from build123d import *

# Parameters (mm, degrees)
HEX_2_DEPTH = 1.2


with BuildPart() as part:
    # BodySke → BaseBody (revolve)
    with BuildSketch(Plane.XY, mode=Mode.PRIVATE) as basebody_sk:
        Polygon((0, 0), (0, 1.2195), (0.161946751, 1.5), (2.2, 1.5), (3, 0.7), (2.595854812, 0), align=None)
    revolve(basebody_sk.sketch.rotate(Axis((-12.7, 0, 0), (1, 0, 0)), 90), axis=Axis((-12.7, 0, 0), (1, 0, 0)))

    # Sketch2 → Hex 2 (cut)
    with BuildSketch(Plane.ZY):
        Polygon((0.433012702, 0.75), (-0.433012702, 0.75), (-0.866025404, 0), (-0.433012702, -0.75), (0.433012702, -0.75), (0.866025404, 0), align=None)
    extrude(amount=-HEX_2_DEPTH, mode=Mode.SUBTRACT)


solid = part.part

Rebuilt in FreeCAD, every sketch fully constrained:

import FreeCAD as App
import Part
import Sketcher
from FreeCAD import Vector
Q = App.Units.Quantity


def add_polygon(sketch, points):
    """Adds a closed chain of lines whose ends are joined by coincident constraints."""
    first, n = sketch.GeometryCount, len(points)
    for a, b in zip(points, points[1:] + points[:1]):
        sketch.addGeometry(Part.LineSegment(App.Vector(*a, 0), App.Vector(*b, 0)), False)
    for i in range(n):
        sketch.addConstraint(Sketcher.Constraint("Coincident", first + i, 2, first + (i + 1) % n, 1))

doc = App.newDocument("Part")
body = doc.addObject("PartDesign::Body", "Body")

sketch1 = doc.addObject("Sketcher::SketchObject", "Sketch")
body.addObject(sketch1)
sketch1.AttachmentSupport = (doc.XY_Plane, [""])
sketch1.MapMode = "FlatFace"
add_polygon(sketch1, [(0, 1.22), (0, 0), (2.6, 0), (3, 0.7), (2.2, 1.5), (0.16, 1.5)])
sketch1.addConstraint(Sketcher.Constraint("Vertical", 0))
sketch1.addConstraint(Sketcher.Constraint("Horizontal", 1))
sketch1.addConstraint(Sketcher.Constraint("Horizontal", 4))
sketch1.addConstraint(Sketcher.Constraint("Coincident", 0, 2, -1, 1))
sketch1.addConstraint(Sketcher.Constraint("Parallel", 2, 5))
sketch1.addConstraint(Sketcher.Constraint("Angle", 2, Q("60 deg")))
sketch1.addConstraint(Sketcher.Constraint("Angle", 3, Q("135 deg")))
sketch1.addConstraint(Sketcher.Constraint("DistanceX", -1, 1, 2, 2, 3.0))
sketch1.addConstraint(Sketcher.Constraint("DistanceY", -1, 1, 2, 2, 0.7))
sketch1.addConstraint(Sketcher.Constraint("DistanceX", -1, 1, 3, 2, 2.2))
sketch1.addConstraint(Sketcher.Constraint("DistanceY", 0, 2, 0, 1, 1.2195))
revolution = doc.addObject("PartDesign::Revolution", "Revolution")
body.addObject(revolution)
revolution.Profile = sketch1
revolution.ReferenceAxis = (sketch1, ["H_Axis"])
revolution.Angle = 360

sketch2 = doc.addObject("Sketcher::SketchObject", "Sketch001")
body.addObject(sketch2)
sketch2.AttachmentSupport = (doc.YZ_Plane, [""])
sketch2.MapMode = "FlatFace"
add_polygon(sketch2, [(0.8, 0.4), (0.8, -0.4), (0, -0.9), (-0.8, -0.4), (-0.8, 0.4), (0, 0.9)])
sketch2.addConstraint(Sketcher.Constraint("Vertical", 0))
sketch2.addConstraint(Sketcher.Constraint("Vertical", 3))
sketch2.addConstraint(Sketcher.Constraint("Symmetric", 0, 2, 3, 2, -1, 1))
sketch2.addConstraint(Sketcher.Constraint("Symmetric", 1, 2, 4, 2, -1, 1))
sketch2.addConstraint(Sketcher.Constraint("PointOnObject", 1, 2, -2))
sketch2.addConstraint(Sketcher.Constraint("Parallel", 2, 5))
sketch2.addConstraint(Sketcher.Constraint("Horizontal", 0, 2, 2, 2))
sketch2.addConstraint(Sketcher.Constraint("Angle", 1, Q("-150 deg")))
sketch2.addConstraint(Sketcher.Constraint("DistanceX", 2, 2, 0, 2, 1.5))
sketch2.addConstraint(Sketcher.Constraint("DistanceY", 0, 2, 0, 1, 0.866025))
pocket1 = doc.addObject("PartDesign::Pocket", "Pocket")
body.addObject(pocket1)
pocket1.Profile = sketch2
pocket1.Length = 1.2
pocket1.Reversed = True

doc.recompute()
